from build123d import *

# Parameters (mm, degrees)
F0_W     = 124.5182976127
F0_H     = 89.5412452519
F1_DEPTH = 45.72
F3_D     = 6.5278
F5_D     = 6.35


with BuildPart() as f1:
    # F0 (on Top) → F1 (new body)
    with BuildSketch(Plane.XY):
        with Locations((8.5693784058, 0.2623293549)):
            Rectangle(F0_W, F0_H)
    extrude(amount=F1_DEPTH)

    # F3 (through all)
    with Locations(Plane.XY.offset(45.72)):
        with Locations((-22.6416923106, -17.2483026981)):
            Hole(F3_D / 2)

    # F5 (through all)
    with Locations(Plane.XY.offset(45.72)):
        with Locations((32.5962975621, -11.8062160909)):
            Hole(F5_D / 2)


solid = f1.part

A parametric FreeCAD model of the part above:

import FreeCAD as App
import Part
import Sketcher
Q = App.Units.Quantity


def add_polygon(sketch, points):
    """Adds a closed chain of lines whose ends are joined by coincident constraints."""
    first, n = sketch.GeometryCount, len(points)
    for a, b in zip(points, points[1:] + points[:1]):
        sketch.addGeometry(Part.LineSegment(App.Vector(*a, 0), App.Vector(*b, 0)), False)
    for i in range(n):
        sketch.addConstraint(Sketcher.Constraint("Coincident", first + i, 2, first + (i + 1) % n, 1))

doc = App.newDocument("Part")
params = doc.addObject("Spreadsheet::Sheet", "Params")
for row, (alias, value) in enumerate([
    ("pad1_length", "1.8 in"),
    ("sketch2_diameter", "0.257 in"),
    ("hole_diameter", "0.257 in"),
    ("sketch3_diameter", "0.25 in"),
    ("hole2_diameter", "0.25 in"),
], start=1):
    params.set(f"A{row}", alias)
    params.set(f"B{row}", "=" + value)
    params.setAlias(f"B{row}", alias)

body = doc.addObject("PartDesign::Body", "Body")

# Sketch on XY plane
sketch1 = body.newObject("Sketcher::SketchObject", "Sketch")
sketch1.AttachmentSupport = (doc.getObject("XY_Plane"), [""])
sketch1.MapMode = "FlatFace"
add_polygon(sketch1, [(-54, 45), (-54, -45), (71, -45), (71, 45)])  # lines 0-3
sketch1.addConstraint(Sketcher.Constraint("Vertical", 0))
sketch1.addConstraint(Sketcher.Constraint("Horizontal", 1))
sketch1.addConstraint(Sketcher.Constraint("Vertical", 2))
sketch1.addConstraint(Sketcher.Constraint("Horizontal", 3))
sketch1.addConstraint(Sketcher.Constraint("DistanceX", 1, 1, 1, 2, Q("124.518298 mm")))
sketch1.addConstraint(Sketcher.Constraint("DistanceY", 0, 2, 0, 1, Q("89.541245 mm")))
sketch1.addConstraint(Sketcher.Constraint("DistanceX", 0, 2, -1, 1, Q("53.68977 mm")))
sketch1.addConstraint(Sketcher.Constraint("DistanceY", -1, 1, 2, 2, Q("45.032952 mm")))
pad1 = body.newObject("PartDesign::Pad", "Pad")
pad1.Profile = sketch1
pad1.setExpression("Length", "Params.pad1_length")

# Sketch on XY plane
sketch2 = body.newObject("Sketcher::SketchObject", "Sketch001")
sketch2.AttachmentSupport = (doc.getObject("XY_Plane"), [""])
sketch2.MapMode = "FlatFace"
sketch2.AttachmentOffset = App.Placement(App.Vector(0, 0, 1.8 * 25.4), App.Rotation())
sketch2.addGeometry(Part.Circle(App.Vector(-22.6, -17.2, 0), App.Vector(0, 0, 1), 3.3), False)
sketch2.addConstraint(Sketcher.Constraint("Diameter", 0, Q("0.257 in")))
sketch2.addConstraint(Sketcher.Constraint("DistanceX", 0, 3, -1, 1, Q("22.641692 mm")))
sketch2.addConstraint(Sketcher.Constraint("DistanceY", 0, 3, -1, 1, Q("17.248303 mm")))
sketch2.setExpression("Constraints[0]", "Params.sketch2_diameter")
doc.recompute()
hole = body.newObject("PartDesign::Hole", "Hole")
hole.Profile = sketch2
hole.ThreadType = "None"
hole.setExpression("Diameter", "Params.hole_diameter")
hole.DepthType = "ThroughAll"

# Sketch on XY plane
sketch3 = body.newObject("Sketcher::SketchObject", "Sketch002")
sketch3.AttachmentSupport = (doc.getObject("XY_Plane"), [""])
sketch3.MapMode = "FlatFace"
sketch3.AttachmentOffset = App.Placement(App.Vector(0, 0, 1.8 * 25.4), App.Rotation())
sketch3.addGeometry(Part.Circle(App.Vector(32.6, -11.8, 0), App.Vector(0, 0, 1), 3.2), False)
sketch3.addConstraint(Sketcher.Constraint("Diameter", 0, Q("0.25 in")))
sketch3.addConstraint(Sketcher.Constraint("DistanceX", -1, 1, 0, 3, Q("32.596298 mm")))
sketch3.addConstraint(Sketcher.Constraint("DistanceY", 0, 3, -1, 1, Q("11.806216 mm")))
sketch3.setExpression("Constraints[0]", "Params.sketch3_diameter")
doc.recompute()
hole2 = body.newObject("PartDesign::Hole", "Hole001")
hole2.Profile = sketch3
hole2.ThreadType = "None"
hole2.setExpression("Diameter", "Params.hole2_diameter")
hole2.DepthType = "ThroughAll"

doc.recompute()
